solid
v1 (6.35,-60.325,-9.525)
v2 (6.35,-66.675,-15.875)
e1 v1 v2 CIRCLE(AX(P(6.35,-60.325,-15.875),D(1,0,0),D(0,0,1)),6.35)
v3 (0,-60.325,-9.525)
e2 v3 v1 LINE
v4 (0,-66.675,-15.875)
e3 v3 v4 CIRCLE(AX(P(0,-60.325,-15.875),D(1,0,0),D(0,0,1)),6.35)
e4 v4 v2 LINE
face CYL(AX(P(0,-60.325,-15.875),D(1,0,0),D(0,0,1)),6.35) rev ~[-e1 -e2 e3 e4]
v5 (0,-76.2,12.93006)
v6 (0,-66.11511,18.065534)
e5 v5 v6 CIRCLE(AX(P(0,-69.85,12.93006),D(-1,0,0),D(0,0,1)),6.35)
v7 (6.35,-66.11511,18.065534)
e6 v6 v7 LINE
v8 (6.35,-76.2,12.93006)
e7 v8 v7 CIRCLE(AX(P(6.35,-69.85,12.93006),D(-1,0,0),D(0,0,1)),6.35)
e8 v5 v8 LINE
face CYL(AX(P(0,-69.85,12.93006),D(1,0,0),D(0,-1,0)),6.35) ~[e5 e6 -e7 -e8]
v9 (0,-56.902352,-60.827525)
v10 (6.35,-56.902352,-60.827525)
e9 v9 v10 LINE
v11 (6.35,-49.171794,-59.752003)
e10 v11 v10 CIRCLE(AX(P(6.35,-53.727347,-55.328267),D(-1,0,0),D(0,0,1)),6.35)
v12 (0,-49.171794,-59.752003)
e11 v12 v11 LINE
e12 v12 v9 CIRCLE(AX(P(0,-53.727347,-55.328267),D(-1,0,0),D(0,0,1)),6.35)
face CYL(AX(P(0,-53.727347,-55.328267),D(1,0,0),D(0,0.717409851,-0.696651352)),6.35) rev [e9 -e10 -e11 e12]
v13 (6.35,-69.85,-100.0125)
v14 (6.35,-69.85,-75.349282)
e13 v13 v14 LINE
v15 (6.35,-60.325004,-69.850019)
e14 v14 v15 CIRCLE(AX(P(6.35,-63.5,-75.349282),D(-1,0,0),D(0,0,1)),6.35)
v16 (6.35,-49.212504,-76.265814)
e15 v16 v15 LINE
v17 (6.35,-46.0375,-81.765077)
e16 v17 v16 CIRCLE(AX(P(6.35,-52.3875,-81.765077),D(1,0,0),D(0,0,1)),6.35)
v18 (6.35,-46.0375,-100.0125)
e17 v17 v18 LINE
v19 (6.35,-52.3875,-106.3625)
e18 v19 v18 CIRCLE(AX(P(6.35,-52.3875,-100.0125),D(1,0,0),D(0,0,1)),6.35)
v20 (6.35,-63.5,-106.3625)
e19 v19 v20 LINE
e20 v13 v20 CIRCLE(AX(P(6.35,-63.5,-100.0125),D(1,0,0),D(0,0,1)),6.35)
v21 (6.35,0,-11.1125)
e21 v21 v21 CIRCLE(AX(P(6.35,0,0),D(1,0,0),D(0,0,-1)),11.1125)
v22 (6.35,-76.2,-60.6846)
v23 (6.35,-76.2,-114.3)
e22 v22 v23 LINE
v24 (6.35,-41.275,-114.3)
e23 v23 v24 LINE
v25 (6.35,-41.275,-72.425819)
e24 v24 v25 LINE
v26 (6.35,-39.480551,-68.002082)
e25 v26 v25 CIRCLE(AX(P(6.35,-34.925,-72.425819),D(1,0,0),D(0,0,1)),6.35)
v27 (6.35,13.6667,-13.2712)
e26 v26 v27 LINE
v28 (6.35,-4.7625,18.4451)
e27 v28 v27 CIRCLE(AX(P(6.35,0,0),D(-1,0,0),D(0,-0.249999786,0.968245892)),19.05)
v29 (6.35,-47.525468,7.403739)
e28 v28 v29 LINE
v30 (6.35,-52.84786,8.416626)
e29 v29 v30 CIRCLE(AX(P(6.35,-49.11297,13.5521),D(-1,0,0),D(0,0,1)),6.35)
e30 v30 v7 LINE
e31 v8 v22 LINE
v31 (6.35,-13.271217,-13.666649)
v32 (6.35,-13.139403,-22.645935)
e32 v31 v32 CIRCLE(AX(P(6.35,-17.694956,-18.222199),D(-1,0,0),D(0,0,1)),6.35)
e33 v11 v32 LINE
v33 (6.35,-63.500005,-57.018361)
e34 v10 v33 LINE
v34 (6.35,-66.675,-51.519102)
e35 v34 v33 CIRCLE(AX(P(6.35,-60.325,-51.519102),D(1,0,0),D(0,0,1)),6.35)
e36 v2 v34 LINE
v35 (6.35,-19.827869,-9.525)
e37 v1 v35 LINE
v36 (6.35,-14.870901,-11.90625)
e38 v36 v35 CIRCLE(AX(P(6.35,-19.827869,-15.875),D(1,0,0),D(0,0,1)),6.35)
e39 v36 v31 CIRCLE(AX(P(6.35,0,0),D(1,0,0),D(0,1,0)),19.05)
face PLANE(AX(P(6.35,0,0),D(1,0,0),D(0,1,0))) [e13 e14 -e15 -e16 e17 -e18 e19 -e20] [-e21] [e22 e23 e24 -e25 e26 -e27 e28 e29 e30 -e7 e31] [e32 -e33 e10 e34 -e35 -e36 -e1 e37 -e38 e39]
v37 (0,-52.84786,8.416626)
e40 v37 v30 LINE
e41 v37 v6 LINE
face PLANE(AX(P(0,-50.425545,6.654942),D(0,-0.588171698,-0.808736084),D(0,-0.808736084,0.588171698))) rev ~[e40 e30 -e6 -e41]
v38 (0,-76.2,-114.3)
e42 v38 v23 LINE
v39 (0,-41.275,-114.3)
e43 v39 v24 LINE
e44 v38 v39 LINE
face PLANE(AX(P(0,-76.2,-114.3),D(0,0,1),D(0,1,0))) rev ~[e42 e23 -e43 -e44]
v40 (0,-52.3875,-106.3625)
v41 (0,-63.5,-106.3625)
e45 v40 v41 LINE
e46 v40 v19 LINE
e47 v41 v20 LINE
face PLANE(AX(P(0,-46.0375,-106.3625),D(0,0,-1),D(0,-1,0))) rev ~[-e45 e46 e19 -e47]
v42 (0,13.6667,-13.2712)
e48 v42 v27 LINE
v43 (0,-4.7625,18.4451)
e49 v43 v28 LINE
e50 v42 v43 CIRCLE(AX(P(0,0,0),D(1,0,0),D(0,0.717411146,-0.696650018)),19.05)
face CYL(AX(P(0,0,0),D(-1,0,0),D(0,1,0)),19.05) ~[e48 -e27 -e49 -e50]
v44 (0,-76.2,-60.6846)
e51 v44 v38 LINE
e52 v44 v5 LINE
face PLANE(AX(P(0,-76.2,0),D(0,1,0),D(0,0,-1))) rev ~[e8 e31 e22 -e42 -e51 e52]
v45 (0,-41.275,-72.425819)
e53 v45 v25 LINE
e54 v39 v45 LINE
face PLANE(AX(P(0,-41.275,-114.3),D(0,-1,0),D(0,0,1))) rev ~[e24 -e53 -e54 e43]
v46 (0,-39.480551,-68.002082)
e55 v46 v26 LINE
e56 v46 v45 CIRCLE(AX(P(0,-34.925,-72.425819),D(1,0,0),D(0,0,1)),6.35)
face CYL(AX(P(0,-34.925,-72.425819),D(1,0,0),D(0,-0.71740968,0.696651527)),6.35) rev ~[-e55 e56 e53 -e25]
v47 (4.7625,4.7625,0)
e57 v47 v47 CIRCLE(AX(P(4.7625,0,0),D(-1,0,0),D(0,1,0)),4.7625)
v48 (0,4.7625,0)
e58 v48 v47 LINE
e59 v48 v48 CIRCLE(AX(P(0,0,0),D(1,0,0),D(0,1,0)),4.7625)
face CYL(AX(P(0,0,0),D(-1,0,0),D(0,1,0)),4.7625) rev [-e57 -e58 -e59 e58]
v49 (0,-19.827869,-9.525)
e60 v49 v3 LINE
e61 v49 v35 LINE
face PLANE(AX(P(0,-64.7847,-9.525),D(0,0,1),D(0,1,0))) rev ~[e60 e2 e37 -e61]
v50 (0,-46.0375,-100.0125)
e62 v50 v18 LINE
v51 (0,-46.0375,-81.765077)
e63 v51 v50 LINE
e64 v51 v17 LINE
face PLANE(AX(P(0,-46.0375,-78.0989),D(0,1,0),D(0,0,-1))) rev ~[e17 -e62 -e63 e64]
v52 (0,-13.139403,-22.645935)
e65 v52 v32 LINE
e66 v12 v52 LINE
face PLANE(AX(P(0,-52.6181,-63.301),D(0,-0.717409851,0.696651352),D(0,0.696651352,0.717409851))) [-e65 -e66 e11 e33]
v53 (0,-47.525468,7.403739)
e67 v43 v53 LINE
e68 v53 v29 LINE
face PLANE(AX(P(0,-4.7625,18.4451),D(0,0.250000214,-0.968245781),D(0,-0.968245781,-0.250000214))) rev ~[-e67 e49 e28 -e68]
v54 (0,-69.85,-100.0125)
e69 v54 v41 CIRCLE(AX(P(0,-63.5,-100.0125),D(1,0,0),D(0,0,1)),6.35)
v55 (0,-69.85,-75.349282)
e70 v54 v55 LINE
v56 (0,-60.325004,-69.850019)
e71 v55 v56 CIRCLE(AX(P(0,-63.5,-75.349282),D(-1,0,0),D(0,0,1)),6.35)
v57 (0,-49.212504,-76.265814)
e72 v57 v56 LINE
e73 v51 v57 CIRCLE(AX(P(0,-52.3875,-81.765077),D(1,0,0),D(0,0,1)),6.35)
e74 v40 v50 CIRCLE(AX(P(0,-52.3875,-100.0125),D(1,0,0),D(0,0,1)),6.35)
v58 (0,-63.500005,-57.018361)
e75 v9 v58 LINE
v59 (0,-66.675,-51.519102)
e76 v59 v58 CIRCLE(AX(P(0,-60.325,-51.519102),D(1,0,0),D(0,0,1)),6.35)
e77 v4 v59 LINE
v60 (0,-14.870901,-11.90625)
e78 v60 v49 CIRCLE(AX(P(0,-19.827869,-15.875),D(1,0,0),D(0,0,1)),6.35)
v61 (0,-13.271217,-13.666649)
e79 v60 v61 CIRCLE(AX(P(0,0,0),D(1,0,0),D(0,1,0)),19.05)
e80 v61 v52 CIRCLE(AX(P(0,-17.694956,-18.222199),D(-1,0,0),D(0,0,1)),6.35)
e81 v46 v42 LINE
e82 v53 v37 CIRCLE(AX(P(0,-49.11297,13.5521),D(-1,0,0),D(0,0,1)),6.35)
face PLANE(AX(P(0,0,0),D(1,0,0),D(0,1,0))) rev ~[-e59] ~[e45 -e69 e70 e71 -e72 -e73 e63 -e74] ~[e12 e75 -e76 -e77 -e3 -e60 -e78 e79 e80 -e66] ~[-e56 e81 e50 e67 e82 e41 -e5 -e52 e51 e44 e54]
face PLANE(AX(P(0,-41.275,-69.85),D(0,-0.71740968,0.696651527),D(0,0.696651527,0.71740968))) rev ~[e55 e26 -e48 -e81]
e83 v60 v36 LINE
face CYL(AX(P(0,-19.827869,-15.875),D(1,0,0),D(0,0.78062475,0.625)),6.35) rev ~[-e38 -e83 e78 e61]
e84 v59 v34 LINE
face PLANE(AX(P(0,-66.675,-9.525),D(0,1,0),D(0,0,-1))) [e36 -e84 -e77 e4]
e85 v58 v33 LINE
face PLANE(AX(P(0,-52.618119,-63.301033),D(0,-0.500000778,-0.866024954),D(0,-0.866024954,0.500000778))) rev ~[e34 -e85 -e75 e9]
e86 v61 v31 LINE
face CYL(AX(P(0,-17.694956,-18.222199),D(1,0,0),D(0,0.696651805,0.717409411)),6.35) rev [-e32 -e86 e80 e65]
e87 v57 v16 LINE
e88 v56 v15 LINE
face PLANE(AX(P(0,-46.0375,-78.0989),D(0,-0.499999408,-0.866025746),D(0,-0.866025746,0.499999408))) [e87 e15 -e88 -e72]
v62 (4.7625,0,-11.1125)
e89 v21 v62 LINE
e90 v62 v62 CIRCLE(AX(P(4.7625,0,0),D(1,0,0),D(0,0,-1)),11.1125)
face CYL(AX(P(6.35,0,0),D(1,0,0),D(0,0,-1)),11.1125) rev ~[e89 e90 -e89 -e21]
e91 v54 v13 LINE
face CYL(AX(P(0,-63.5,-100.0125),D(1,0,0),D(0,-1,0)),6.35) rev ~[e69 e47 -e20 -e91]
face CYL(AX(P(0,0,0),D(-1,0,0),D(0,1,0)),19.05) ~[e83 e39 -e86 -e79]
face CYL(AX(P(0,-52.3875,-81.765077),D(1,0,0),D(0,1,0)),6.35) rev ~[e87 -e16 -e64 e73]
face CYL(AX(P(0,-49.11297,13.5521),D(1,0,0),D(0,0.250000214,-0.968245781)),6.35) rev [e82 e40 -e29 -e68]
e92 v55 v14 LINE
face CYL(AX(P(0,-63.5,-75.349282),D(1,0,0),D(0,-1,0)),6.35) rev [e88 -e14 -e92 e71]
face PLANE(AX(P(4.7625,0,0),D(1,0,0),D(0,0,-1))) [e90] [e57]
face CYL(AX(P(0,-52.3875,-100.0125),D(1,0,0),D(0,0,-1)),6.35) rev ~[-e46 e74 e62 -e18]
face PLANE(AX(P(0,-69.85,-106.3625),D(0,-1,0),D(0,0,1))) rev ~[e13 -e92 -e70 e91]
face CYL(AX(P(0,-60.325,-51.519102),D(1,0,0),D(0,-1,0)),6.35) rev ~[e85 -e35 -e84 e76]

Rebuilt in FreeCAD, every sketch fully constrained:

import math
import FreeCAD as App
import Part
import Sketcher
Q = App.Units.Quantity


def edges_at(feature, points):
    """Names of the edges that pass closest to the given points."""
    edges = feature.Shape.Edges
    near = lambda p: min(range(len(edges)), key=lambda i: edges[i].distToShape(Part.Vertex(*p))[0])
    return sorted({f"Edge{near(p) + 1}" for p in points})

doc = App.newDocument("Part")
body = doc.addObject("PartDesign::Body", "Body")

sketch1 = doc.addObject("Sketcher::SketchObject", "Sketch")
body.addObject(sketch1)
sketch1.AttachmentSupport = (doc.YZ_Plane, [""])
sketch1.MapMode = "FlatFace"
sketch1.addGeometry([
    Part.ArcOfCircle(Part.Circle(App.Vector(0, 0, 0), App.Vector(0, 0, 1), 19.05), math.radians(-44.158849), math.radians(104.4775)),
    Part.LineSegment(App.Vector(-4.7625, 18.4451, 0), App.Vector(-50.425545, 6.654942, 0)),
    Part.LineSegment(App.Vector(-50.425545, 6.654942, 0), App.Vector(-76.2, 25.4, 0)),
    Part.LineSegment(App.Vector(-76.2, 25.4, 0), App.Vector(-76.2, -60.6846, 0)),
    Part.LineSegment(App.Vector(-76.2, -60.6846, 0), App.Vector(-76.2, -114.3, 0)),
    Part.LineSegment(App.Vector(-76.2, -114.3, 0), App.Vector(-41.275, -114.3, 0)),
    Part.LineSegment(App.Vector(-41.275, -114.3, 0), App.Vector(-41.275, -69.85, 0)),
    Part.LineSegment(App.Vector(-41.275, -69.85, 0), App.Vector(13.6667, -13.2712, 0)),
    Part.ArcOfCircle(Part.Circle(App.Vector(0, 0, 0), App.Vector(0, 0, 1), 19.05), math.radians(-150.000024), math.radians(-114.687817)),
    Part.LineSegment(App.Vector(-7.9567, -17.3088, 0), App.Vector(-52.6181, -63.301, 0)),
    Part.LineSegment(App.Vector(-52.618119, -63.301033, 0), App.Vector(-66.674988, -55.18528, 0)),
    Part.LineSegment(App.Vector(-66.675, -55.1853, 0), App.Vector(-66.675, -9.525, 0)),
    Part.LineSegment(App.Vector(-66.675, -9.525, 0), App.Vector(-16.4978, -9.525, 0)),
    Part.Circle(App.Vector(0, 0, 0), App.Vector(0, 0, 1), 4.7625),
    Part.LineSegment(App.Vector(-69.85003, -64.350751, 0), App.Vector(-46.0375, -78.0989, 0)),
    Part.LineSegment(App.Vector(-46.0375, -78.0989, 0), App.Vector(-46.0375, -106.3625, 0)),
    Part.LineSegment(App.Vector(-46.0375, -106.3625, 0), App.Vector(-69.85, -106.3625, 0)),
    Part.LineSegment(App.Vector(-69.85, -106.3625, 0), App.Vector(-69.85, -64.3507, 0)),
], False)
sketch1.addConstraint([
    Sketcher.Constraint("Tangent", 0, 2, 1, 1),
    Sketcher.Constraint("Coincident", 1, 2, 2, 1),
    Sketcher.Constraint("Coincident", 2, 2, 3, 1),
    Sketcher.Constraint("Coincident", 3, 2, 4, 1),
    Sketcher.Constraint("Coincident", 4, 2, 5, 1),
    Sketcher.Constraint("Coincident", 5, 2, 6, 1),
    Sketcher.Constraint("Coincident", 6, 2, 7, 1),
    Sketcher.Constraint("Tangent", 7, 2, 0, 1),
    Sketcher.Constraint("Coincident", 8, 2, 9, 1),
    Sketcher.Constraint("Coincident", 9, 2, 10, 1),
    Sketcher.Constraint("Coincident", 10, 2, 11, 1),
    Sketcher.Constraint("Coincident", 11, 2, 12, 1),
    Sketcher.Constraint("Coincident", 12, 2, 8, 1),
    Sketcher.Constraint("Coincident", 14, 2, 15, 1),
    Sketcher.Constraint("Coincident", 15, 2, 16, 1),
    Sketcher.Constraint("Coincident", 16, 2, 17, 1),
    Sketcher.Constraint("Coincident", 17, 2, 14, 1),
    Sketcher.Constraint("Vertical", 3),
    Sketcher.Constraint("Vertical", 4),
    Sketcher.Constraint("Horizontal", 5),
    Sketcher.Constraint("Vertical", 6),
    Sketcher.Constraint("Vertical", 11),
    Sketcher.Constraint("Horizontal", 12),
    Sketcher.Constraint("Vertical", 15),
    Sketcher.Constraint("Horizontal", 16),
    Sketcher.Constraint("Vertical", 17),
    Sketcher.Constraint("Coincident", 0, 3, -1, 1),
    Sketcher.Constraint("Coincident", 8, 3, -1, 1),
    Sketcher.Constraint("Coincident", 13, 3, -1, 1),
    Sketcher.Constraint("Equal", 0, 8),
    Sketcher.Constraint("Parallel", 7, 9),
    Sketcher.Constraint("Parallel", 10, 14),
    Sketcher.Constraint("Radius", 0, Q("0.75 in")),
    Sketcher.Constraint("Diameter", 13, Q("0.375 in")),
    Sketcher.Constraint("DistanceX", 2, 2, -1, 1, Q("3 in")),
    Sketcher.Constraint("DistanceY", -1, 1, 2, 2, Q("1 in")),
    Sketcher.Constraint("DistanceX", 10, 2, 6, 2, Q("1 in")),
    Sketcher.Constraint("DistanceY", 6, 1, 6, 2, Q("1.75 in")),
    Sketcher.Constraint("DistanceY", 4, 2, -1, 1, Q("4.5 in")),
    Sketcher.Constraint("DistanceX", 5, 1, 5, 2, Q("1.375 in")),
    Sketcher.Constraint("DistanceX", 4, 2, 16, 2, Q("0.25 in")),
    Sketcher.Constraint("DistanceX", 0, 2, -1, 1, Q("0.1875 in")),
    Sketcher.Constraint("DistanceY", 11, 2, -1, 1, Q("0.375 in")),
    Sketcher.Constraint("Angle", 10, Q("150 deg")),
    Sketcher.Constraint("DistanceX", 14, 2, 6, 2, Q("0.1875 in")),
    Sketcher.Constraint("DistanceY", 5, 2, 15, 2, Q("0.3125 in")),
    Sketcher.Constraint("DistanceY", 17, 1, 17, 2, Q("1.654 in")),
    Sketcher.Constraint("DistanceY", -1, 1, 1, 2, Q("0.262 in")),
    Sketcher.Constraint("DistanceY", 9, 2, 3, 2, Q("0.103 in")),
    Sketcher.Constraint("DistanceY", 3, 2, 3, 1, 86.0846),
    Sketcher.Constraint("DistanceY", 11, 1, 11, 2, 45.6603),
])
pad1 = doc.addObject("PartDesign::Pad", "Pad")
body.addObject(pad1)
pad1.Profile = sketch1
pad1.Length = Q("0.25 in")
doc.recompute()

fillet = doc.addObject("PartDesign::Fillet", "Fillet")
body.addObject(fillet)
fillet.Base = (pad1, edges_at(pad1, [
    (3.175, -7.957, -17.309),
    (3.175, -16.498, -9.525),
    (3.175, -52.618, -63.301),
    (3.175, -66.675, -9.525),
    (3.175, -66.675, -55.185),
    (3.175, -69.85, -64.351),
    (3.175, -46.038, -78.099),
    (3.175, -46.038, -106.362),
    (3.175, -69.85, -106.362),
    (3.175, -41.275, -69.85),
]))
fillet.Radius = Q("0.25 in")
doc.recompute()

fillet2 = doc.addObject("PartDesign::Fillet", "Fillet001")
body.addObject(fillet2)
fillet2.Base = (fillet, edges_at(fillet, [(3.175, -76.2, 25.4), (3.175, -50.425, 6.655)]))
fillet2.Radius = Q("0.25 in")

sketch2 = doc.addObject("Sketcher::SketchObject", "Sketch001")
body.addObject(sketch2)
sketch2.AttachmentSupport = (doc.YZ_Plane, [""])
sketch2.MapMode = "FlatFace"
sketch2.AttachmentOffset = App.Placement(App.Vector(0, 0, 0.25 * 25.4), App.Rotation())
sketch2.addGeometry(Part.Circle(App.Vector(0, 0, 0), App.Vector(0, 0, 1), 11.1125), False)
sketch2.addConstraint([
    Sketcher.Constraint("Coincident", 0, 3, -1, 1),
    Sketcher.Constraint("Diameter", 0, Q("0.875 in")),
])
pocket1 = doc.addObject("PartDesign::Pocket", "Pocket")
body.addObject(pocket1)
pocket1.Profile = sketch2
pocket1.Length = Q("0.0625 in")

doc.recompute()
